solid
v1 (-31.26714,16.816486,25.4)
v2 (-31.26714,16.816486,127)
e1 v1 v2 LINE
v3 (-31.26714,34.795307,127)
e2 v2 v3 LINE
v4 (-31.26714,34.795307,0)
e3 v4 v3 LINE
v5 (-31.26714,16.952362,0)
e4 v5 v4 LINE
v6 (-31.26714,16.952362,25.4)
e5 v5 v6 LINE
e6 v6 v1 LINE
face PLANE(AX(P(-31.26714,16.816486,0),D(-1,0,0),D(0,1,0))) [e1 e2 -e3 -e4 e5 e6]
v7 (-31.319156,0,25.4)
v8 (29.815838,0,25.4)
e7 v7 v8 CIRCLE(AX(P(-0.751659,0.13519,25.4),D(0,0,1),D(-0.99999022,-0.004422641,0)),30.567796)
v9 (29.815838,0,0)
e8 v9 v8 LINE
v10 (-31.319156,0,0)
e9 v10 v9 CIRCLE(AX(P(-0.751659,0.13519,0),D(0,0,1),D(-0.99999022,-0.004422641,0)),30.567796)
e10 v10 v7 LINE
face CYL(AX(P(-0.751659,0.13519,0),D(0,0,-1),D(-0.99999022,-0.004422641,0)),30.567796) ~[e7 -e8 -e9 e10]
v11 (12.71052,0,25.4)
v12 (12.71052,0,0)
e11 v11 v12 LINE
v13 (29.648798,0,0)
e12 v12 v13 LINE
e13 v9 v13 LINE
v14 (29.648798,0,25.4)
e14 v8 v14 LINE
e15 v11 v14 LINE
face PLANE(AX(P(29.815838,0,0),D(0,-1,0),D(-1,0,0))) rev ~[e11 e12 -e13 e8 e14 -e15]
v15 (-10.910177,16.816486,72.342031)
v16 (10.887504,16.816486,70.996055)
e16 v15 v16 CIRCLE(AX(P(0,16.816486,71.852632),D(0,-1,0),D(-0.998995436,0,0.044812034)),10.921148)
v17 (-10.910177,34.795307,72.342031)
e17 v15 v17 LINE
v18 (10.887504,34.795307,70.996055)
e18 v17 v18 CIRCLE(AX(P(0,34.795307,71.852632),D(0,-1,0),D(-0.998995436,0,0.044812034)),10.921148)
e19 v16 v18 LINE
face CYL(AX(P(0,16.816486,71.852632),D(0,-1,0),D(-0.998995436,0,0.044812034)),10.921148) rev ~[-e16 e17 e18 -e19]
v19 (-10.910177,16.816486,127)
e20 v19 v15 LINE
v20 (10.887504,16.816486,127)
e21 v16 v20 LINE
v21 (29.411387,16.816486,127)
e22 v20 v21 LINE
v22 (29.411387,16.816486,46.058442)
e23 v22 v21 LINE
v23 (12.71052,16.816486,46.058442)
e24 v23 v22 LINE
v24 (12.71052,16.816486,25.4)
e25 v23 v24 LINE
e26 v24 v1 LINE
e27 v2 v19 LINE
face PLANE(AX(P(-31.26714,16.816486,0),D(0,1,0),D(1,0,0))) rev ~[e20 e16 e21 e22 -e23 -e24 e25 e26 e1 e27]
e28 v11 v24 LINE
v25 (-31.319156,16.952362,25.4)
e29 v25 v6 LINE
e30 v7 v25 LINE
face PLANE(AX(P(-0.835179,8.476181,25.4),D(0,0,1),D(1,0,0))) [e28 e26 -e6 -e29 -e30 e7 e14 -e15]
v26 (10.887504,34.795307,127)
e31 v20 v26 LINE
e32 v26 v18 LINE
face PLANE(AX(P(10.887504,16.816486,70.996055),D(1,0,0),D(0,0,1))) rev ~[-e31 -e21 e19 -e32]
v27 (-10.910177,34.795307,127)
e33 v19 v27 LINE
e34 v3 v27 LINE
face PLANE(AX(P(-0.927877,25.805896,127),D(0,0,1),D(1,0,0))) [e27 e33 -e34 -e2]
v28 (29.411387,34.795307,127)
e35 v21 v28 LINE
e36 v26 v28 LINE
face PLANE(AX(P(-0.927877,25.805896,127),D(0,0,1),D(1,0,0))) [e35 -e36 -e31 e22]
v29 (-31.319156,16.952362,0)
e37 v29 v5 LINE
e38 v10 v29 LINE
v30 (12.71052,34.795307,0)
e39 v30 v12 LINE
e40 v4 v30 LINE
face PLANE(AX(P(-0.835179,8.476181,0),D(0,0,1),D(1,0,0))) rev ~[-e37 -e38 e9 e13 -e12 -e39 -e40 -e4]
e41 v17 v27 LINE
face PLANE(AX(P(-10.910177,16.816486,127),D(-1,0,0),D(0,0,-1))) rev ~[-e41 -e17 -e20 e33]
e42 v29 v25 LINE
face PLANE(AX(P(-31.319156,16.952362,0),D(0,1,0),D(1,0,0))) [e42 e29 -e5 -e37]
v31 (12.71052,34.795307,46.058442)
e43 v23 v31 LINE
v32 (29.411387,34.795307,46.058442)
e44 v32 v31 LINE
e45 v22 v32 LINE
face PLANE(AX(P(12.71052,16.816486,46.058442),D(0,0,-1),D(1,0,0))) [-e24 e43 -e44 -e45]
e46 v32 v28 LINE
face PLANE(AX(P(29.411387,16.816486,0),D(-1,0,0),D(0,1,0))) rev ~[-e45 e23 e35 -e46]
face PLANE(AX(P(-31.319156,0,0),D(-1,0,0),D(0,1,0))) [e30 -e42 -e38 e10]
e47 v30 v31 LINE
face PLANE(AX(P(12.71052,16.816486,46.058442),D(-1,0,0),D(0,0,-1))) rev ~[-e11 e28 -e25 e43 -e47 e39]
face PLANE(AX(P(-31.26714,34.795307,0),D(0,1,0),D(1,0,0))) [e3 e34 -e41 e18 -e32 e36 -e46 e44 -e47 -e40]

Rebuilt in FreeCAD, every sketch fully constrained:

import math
import FreeCAD as App
import Part
import Sketcher
Q = App.Units.Quantity

doc = App.newDocument("Part")
body = doc.addObject("PartDesign::Body", "Body")

# Sketch on XY plane
sketch1 = doc.addObject("Sketcher::SketchObject", "Sketch")
body.addObject(sketch1)
sketch1.AttachmentSupport = (doc.XY_Plane, [""])
sketch1.MapMode = "FlatFace"
sketch1.addGeometry(Part.LineSegment(App.Vector(29.815838, 0, 0), App.Vector(-31.319156, 0, 0)), False)
sketch1.addGeometry(Part.ArcOfCircle(Part.Circle(App.Vector(-0.751659, 0.13519, 0), App.Vector(0, 0, 1), 30.567796), math.radians(-179.746601), math.radians(-0.253399)), False)
sketch1.addConstraint(Sketcher.Constraint("Coincident", 0, 1, 1, 2))
sketch1.addConstraint(Sketcher.Constraint("Coincident", 1, 1, 0, 2))
sketch1.addConstraint(Sketcher.Constraint("Horizontal", 0))
sketch1.addConstraint(Sketcher.Constraint("PointOnObject", 0, 1, -1))
sketch1.addConstraint(Sketcher.Constraint("Radius", 1, Q("30.567796 mm")))
sketch1.addConstraint(Sketcher.Constraint("DistanceX", 0, 2, 0, 1, Q("61.134994 mm")))
sketch1.addConstraint(Sketcher.Constraint("DistanceX", 1, 3, -1, 1, Q("0.751659 mm")))
pad1 = doc.addObject("PartDesign::Pad", "Pad")
body.addObject(pad1)
pad1.Profile = sketch1
pad1.Length = Q("1 in")

# Sketch on XY plane
sketch2 = doc.addObject("Sketcher::SketchObject", "Sketch001")
body.addObject(sketch2)
sketch2.AttachmentSupport = (doc.XY_Plane, [""])
sketch2.MapMode = "FlatFace"
sketch2.addGeometry(Part.LineSegment(App.Vector(-31, 17, 0), App.Vector(-31, 0, 0)), False)
sketch2.addGeometry(Part.LineSegment(App.Vector(-31, 0, 0), App.Vector(30, 0, 0)), False)
sketch2.addGeometry(Part.LineSegment(App.Vector(30, 0, 0), App.Vector(30, 17, 0)), False)
sketch2.addGeometry(Part.LineSegment(App.Vector(30, 17, 0), App.Vector(-31, 17, 0)), False)
sketch2.addConstraint(Sketcher.Constraint("Coincident", 0, 2, 1, 1))
sketch2.addConstraint(Sketcher.Constraint("Coincident", 1, 2, 2, 1))
sketch2.addConstraint(Sketcher.Constraint("Coincident", 2, 2, 3, 1))
sketch2.addConstraint(Sketcher.Constraint("Coincident", 3, 2, 0, 1))
sketch2.addConstraint(Sketcher.Constraint("Vertical", 0))
sketch2.addConstraint(Sketcher.Constraint("Horizontal", 1))
sketch2.addConstraint(Sketcher.Constraint("Vertical", 2))
sketch2.addConstraint(Sketcher.Constraint("Horizontal", 3))
sketch2.addConstraint(Sketcher.Constraint("PointOnObject", 0, 2, -1))
sketch2.addConstraint(Sketcher.Constraint("DistanceY", 0, 2, 0, 1, Q("16.952362 mm")))
sketch2.addConstraint(Sketcher.Constraint("DistanceX", 1, 1, 1, 2, Q("60.967954 mm")))
sketch2.addConstraint(Sketcher.Constraint("DistanceX", 0, 2, -1, 1, Q("31.319156 mm")))
pad2 = doc.addObject("PartDesign::Pad", "Pad001")
body.addObject(pad2)
pad2.Profile = sketch2
pad2.Length = Q("1 in")

# Sketch on XY plane
sketch3 = doc.addObject("Sketcher::SketchObject", "Sketch002")
body.addObject(sketch3)
sketch3.AttachmentSupport = (doc.XY_Plane, [""])
sketch3.MapMode = "FlatFace"
sketch3.AttachmentOffset = App.Placement(App.Vector(0, 0, 1 * 25.4), App.Rotation())
sketch3.addGeometry(Part.LineSegment(App.Vector(13, 17, 0), App.Vector(13, 0, 0)), False)
sketch3.addGeometry(Part.LineSegment(App.Vector(13, 0, 0), App.Vector(30, 0, 0)), False)
sketch3.addGeometry(Part.LineSegment(App.Vector(30, 0, 0), App.Vector(30, 17, 0)), False)
sketch3.addGeometry(Part.LineSegment(App.Vector(30, 17, 0), App.Vector(13, 17, 0)), False)
sketch3.addConstraint(Sketcher.Constraint("Coincident", 0, 2, 1, 1))
sketch3.addConstraint(Sketcher.Constraint("Coincident", 1, 2, 2, 1))
sketch3.addConstraint(Sketcher.Constraint("Coincident", 2, 2, 3, 1))
sketch3.addConstraint(Sketcher.Constraint("Coincident", 3, 2, 0, 1))
sketch3.addConstraint(Sketcher.Constraint("Vertical", 0))
sketch3.addConstraint(Sketcher.Constraint("Horizontal", 1))
sketch3.addConstraint(Sketcher.Constraint("Vertical", 2))
sketch3.addConstraint(Sketcher.Constraint("Horizontal", 3))
sketch3.addConstraint(Sketcher.Constraint("PointOnObject", 0, 2, -1))
sketch3.addConstraint(Sketcher.Constraint("DistanceY", 0, 2, 0, 1, Q("16.952362 mm")))
sketch3.addConstraint(Sketcher.Constraint("DistanceX", 1, 1, 1, 2, Q("17.105318 mm")))
sketch3.addConstraint(Sketcher.Constraint("DistanceX", -1, 1, 0, 2, Q("12.71052 mm")))
pocket1 = doc.addObject("PartDesign::Pocket", "Pocket")
body.addObject(pocket1)
pocket1.Profile = sketch3
pocket1.Length = Q("1 in")

# Sketch on XY plane
sketch4 = doc.addObject("Sketcher::SketchObject", "Sketch003")
body.addObject(sketch4)
sketch4.AttachmentSupport = (doc.XY_Plane, [""])
sketch4.MapMode = "FlatFace"
sketch4.addGeometry(Part.LineSegment(App.Vector(-31, 35, 0), App.Vector(-31, 17, 0)), False)
sketch4.addGeometry(Part.LineSegment(App.Vector(-31, 17, 0), App.Vector(29, 17, 0)), False)
sketch4.addGeometry(Part.LineSegment(App.Vector(29, 17, 0), App.Vector(29, 35, 0)), False)
sketch4.addGeometry(Part.LineSegment(App.Vector(29, 35, 0), App.Vector(-31, 35, 0)), False)
sketch4.addConstraint(Sketcher.Constraint("Coincident", 0, 2, 1, 1))
sketch4.addConstraint(Sketcher.Constraint("Coincident", 1, 2, 2, 1))
sketch4.addConstraint(Sketcher.Constraint("Coincident", 2, 2, 3, 1))
sketch4.addConstraint(Sketcher.Constraint("Coincident", 3, 2, 0, 1))
sketch4.addConstraint(Sketcher.Constraint("Vertical", 0))
sketch4.addConstraint(Sketcher.Constraint("Horizontal", 1))
sketch4.addConstraint(Sketcher.Constraint("Vertical", 2))
sketch4.addConstraint(Sketcher.Constraint("Horizontal", 3))
sketch4.addConstraint(Sketcher.Constraint("DistanceY", 0, 2, 0, 1, Q("17.978821 mm")))
sketch4.addConstraint(Sketcher.Constraint("DistanceX", 1, 1, 1, 2, Q("60.678527 mm")))
sketch4.addConstraint(Sketcher.Constraint("DistanceX", 0, 2, -1, 1, Q("31.26714 mm")))
sketch4.addConstraint(Sketcher.Constraint("DistanceY", -1, 1, 0, 2, Q("16.816486 mm")))
pad3 = doc.addObject("PartDesign::Pad", "Pad002")
body.addObject(pad3)
pad3.Profile = sketch4
pad3.Length = Q("5 in")

# Sketch on XZ plane
sketch5 = doc.addObject("Sketcher::SketchObject", "Sketch004")
body.addObject(sketch5)
sketch5.AttachmentSupport = (doc.XZ_Plane, [""])
sketch5.MapMode = "FlatFace"
sketch5.AttachmentOffset = App.Placement(App.Vector(0, 0, -16.816486), App.Rotation())
sketch5.addGeometry(Part.LineSegment(App.Vector(13, 46, 0), App.Vector(13, 0, 0)), False)
sketch5.addGeometry(Part.LineSegment(App.Vector(13, 0, 0), App.Vector(29, 0, 0)), False)
sketch5.addGeometry(Part.LineSegment(App.Vector(29, 0, 0), App.Vector(29, 46, 0)), False)
sketch5.addGeometry(Part.LineSegment(App.Vector(29, 46, 0), App.Vector(13, 46, 0)), False)
sketch5.addConstraint(Sketcher.Constraint("Coincident", 0, 2, 1, 1))
sketch5.addConstraint(Sketcher.Constraint("Coincident", 1, 2, 2, 1))
sketch5.addConstraint(Sketcher.Constraint("Coincident", 2, 2, 3, 1))
sketch5.addConstraint(Sketcher.Constraint("Coincident", 3, 2, 0, 1))
sketch5.addConstraint(Sketcher.Constraint("Vertical", 0))
sketch5.addConstraint(Sketcher.Constraint("Horizontal", 1))
sketch5.addConstraint(Sketcher.Constraint("Vertical", 2))
sketch5.addConstraint(Sketcher.Constraint("Horizontal", 3))
sketch5.addConstraint(Sketcher.Constraint("PointOnObject", 0, 2, -1))
sketch5.addConstraint(Sketcher.Constraint("DistanceX", 1, 1, 1, 2, Q("16.700867 mm")))
sketch5.addConstraint(Sketcher.Constraint("DistanceY", 0, 2, 0, 1, Q("46.058442 mm")))
sketch5.addConstraint(Sketcher.Constraint("DistanceX", -1, 1, 0, 2, Q("12.71052 mm")))
pocket2 = doc.addObject("PartDesign::Pocket", "Pocket001")
body.addObject(pocket2)
pocket2.Profile = sketch5
pocket2.Length = Q("1 in")

# Sketch on XZ plane
sketch6 = doc.addObject("Sketcher::SketchObject", "Sketch005")
body.addObject(sketch6)
sketch6.AttachmentSupport = (doc.XZ_Plane, [""])
sketch6.MapMode = "FlatFace"
sketch6.AttachmentOffset = App.Placement(App.Vector(0, 0, -16.816486), App.Rotation())
sketch6.addGeometry(Part.LineSegment(App.Vector(-11, 127, 0), App.Vector(-11, 72, 0)), False)
sketch6.addGeometry(Part.ArcOfCircle(Part.Circle(App.Vector(0, 72, 0), App.Vector(0, 0, 1), 11), math.radians(177), math.radians(356)), False)
sketch6.addGeometry(Part.LineSegment(App.Vector(11, 71, 0), App.Vector(11, 127, 0)), False)
sketch6.addGeometry(Part.LineSegment(App.Vector(11, 127, 0), App.Vector(-11, 127, 0)), False)
sketch6.addConstraint(Sketcher.Constraint("Coincident", 0, 2, 1, 1))
sketch6.addConstraint(Sketcher.Constraint("Coincident", 1, 2, 2, 1))
sketch6.addConstraint(Sketcher.Constraint("Coincident", 2, 2, 3, 1))
sketch6.addConstraint(Sketcher.Constraint("Coincident", 3, 2, 0, 1))
sketch6.addConstraint(Sketcher.Constraint("Vertical", 0))
sketch6.addConstraint(Sketcher.Constraint("Vertical", 2))
sketch6.addConstraint(Sketcher.Constraint("Horizontal", 3))
sketch6.addConstraint(Sketcher.Constraint("PointOnObject", 1, 3, -2))
sketch6.addConstraint(Sketcher.Constraint("DistanceY", -1, 1, 2, 2, Q("5 in")))
sketch6.addConstraint(Sketcher.Constraint("Radius", 1, Q("10.921148 mm")))
sketch6.addConstraint(Sketcher.Constraint("DistanceX", 3, 2, 3, 1, Q("21.797681 mm")))
sketch6.addConstraint(Sketcher.Constraint("DistanceY", 0, 2, 0, 1, Q("54.657969 mm")))
sketch6.addConstraint(Sketcher.Constraint("DistanceY", 1, 3, 0, 2, Q("0.489399 mm")))
pocket3 = doc.addObject("PartDesign::Pocket", "Pocket002")
body.addObject(pocket3)
pocket3.Profile = sketch6
pocket3.Length = Q("1 in")

doc.recompute()
